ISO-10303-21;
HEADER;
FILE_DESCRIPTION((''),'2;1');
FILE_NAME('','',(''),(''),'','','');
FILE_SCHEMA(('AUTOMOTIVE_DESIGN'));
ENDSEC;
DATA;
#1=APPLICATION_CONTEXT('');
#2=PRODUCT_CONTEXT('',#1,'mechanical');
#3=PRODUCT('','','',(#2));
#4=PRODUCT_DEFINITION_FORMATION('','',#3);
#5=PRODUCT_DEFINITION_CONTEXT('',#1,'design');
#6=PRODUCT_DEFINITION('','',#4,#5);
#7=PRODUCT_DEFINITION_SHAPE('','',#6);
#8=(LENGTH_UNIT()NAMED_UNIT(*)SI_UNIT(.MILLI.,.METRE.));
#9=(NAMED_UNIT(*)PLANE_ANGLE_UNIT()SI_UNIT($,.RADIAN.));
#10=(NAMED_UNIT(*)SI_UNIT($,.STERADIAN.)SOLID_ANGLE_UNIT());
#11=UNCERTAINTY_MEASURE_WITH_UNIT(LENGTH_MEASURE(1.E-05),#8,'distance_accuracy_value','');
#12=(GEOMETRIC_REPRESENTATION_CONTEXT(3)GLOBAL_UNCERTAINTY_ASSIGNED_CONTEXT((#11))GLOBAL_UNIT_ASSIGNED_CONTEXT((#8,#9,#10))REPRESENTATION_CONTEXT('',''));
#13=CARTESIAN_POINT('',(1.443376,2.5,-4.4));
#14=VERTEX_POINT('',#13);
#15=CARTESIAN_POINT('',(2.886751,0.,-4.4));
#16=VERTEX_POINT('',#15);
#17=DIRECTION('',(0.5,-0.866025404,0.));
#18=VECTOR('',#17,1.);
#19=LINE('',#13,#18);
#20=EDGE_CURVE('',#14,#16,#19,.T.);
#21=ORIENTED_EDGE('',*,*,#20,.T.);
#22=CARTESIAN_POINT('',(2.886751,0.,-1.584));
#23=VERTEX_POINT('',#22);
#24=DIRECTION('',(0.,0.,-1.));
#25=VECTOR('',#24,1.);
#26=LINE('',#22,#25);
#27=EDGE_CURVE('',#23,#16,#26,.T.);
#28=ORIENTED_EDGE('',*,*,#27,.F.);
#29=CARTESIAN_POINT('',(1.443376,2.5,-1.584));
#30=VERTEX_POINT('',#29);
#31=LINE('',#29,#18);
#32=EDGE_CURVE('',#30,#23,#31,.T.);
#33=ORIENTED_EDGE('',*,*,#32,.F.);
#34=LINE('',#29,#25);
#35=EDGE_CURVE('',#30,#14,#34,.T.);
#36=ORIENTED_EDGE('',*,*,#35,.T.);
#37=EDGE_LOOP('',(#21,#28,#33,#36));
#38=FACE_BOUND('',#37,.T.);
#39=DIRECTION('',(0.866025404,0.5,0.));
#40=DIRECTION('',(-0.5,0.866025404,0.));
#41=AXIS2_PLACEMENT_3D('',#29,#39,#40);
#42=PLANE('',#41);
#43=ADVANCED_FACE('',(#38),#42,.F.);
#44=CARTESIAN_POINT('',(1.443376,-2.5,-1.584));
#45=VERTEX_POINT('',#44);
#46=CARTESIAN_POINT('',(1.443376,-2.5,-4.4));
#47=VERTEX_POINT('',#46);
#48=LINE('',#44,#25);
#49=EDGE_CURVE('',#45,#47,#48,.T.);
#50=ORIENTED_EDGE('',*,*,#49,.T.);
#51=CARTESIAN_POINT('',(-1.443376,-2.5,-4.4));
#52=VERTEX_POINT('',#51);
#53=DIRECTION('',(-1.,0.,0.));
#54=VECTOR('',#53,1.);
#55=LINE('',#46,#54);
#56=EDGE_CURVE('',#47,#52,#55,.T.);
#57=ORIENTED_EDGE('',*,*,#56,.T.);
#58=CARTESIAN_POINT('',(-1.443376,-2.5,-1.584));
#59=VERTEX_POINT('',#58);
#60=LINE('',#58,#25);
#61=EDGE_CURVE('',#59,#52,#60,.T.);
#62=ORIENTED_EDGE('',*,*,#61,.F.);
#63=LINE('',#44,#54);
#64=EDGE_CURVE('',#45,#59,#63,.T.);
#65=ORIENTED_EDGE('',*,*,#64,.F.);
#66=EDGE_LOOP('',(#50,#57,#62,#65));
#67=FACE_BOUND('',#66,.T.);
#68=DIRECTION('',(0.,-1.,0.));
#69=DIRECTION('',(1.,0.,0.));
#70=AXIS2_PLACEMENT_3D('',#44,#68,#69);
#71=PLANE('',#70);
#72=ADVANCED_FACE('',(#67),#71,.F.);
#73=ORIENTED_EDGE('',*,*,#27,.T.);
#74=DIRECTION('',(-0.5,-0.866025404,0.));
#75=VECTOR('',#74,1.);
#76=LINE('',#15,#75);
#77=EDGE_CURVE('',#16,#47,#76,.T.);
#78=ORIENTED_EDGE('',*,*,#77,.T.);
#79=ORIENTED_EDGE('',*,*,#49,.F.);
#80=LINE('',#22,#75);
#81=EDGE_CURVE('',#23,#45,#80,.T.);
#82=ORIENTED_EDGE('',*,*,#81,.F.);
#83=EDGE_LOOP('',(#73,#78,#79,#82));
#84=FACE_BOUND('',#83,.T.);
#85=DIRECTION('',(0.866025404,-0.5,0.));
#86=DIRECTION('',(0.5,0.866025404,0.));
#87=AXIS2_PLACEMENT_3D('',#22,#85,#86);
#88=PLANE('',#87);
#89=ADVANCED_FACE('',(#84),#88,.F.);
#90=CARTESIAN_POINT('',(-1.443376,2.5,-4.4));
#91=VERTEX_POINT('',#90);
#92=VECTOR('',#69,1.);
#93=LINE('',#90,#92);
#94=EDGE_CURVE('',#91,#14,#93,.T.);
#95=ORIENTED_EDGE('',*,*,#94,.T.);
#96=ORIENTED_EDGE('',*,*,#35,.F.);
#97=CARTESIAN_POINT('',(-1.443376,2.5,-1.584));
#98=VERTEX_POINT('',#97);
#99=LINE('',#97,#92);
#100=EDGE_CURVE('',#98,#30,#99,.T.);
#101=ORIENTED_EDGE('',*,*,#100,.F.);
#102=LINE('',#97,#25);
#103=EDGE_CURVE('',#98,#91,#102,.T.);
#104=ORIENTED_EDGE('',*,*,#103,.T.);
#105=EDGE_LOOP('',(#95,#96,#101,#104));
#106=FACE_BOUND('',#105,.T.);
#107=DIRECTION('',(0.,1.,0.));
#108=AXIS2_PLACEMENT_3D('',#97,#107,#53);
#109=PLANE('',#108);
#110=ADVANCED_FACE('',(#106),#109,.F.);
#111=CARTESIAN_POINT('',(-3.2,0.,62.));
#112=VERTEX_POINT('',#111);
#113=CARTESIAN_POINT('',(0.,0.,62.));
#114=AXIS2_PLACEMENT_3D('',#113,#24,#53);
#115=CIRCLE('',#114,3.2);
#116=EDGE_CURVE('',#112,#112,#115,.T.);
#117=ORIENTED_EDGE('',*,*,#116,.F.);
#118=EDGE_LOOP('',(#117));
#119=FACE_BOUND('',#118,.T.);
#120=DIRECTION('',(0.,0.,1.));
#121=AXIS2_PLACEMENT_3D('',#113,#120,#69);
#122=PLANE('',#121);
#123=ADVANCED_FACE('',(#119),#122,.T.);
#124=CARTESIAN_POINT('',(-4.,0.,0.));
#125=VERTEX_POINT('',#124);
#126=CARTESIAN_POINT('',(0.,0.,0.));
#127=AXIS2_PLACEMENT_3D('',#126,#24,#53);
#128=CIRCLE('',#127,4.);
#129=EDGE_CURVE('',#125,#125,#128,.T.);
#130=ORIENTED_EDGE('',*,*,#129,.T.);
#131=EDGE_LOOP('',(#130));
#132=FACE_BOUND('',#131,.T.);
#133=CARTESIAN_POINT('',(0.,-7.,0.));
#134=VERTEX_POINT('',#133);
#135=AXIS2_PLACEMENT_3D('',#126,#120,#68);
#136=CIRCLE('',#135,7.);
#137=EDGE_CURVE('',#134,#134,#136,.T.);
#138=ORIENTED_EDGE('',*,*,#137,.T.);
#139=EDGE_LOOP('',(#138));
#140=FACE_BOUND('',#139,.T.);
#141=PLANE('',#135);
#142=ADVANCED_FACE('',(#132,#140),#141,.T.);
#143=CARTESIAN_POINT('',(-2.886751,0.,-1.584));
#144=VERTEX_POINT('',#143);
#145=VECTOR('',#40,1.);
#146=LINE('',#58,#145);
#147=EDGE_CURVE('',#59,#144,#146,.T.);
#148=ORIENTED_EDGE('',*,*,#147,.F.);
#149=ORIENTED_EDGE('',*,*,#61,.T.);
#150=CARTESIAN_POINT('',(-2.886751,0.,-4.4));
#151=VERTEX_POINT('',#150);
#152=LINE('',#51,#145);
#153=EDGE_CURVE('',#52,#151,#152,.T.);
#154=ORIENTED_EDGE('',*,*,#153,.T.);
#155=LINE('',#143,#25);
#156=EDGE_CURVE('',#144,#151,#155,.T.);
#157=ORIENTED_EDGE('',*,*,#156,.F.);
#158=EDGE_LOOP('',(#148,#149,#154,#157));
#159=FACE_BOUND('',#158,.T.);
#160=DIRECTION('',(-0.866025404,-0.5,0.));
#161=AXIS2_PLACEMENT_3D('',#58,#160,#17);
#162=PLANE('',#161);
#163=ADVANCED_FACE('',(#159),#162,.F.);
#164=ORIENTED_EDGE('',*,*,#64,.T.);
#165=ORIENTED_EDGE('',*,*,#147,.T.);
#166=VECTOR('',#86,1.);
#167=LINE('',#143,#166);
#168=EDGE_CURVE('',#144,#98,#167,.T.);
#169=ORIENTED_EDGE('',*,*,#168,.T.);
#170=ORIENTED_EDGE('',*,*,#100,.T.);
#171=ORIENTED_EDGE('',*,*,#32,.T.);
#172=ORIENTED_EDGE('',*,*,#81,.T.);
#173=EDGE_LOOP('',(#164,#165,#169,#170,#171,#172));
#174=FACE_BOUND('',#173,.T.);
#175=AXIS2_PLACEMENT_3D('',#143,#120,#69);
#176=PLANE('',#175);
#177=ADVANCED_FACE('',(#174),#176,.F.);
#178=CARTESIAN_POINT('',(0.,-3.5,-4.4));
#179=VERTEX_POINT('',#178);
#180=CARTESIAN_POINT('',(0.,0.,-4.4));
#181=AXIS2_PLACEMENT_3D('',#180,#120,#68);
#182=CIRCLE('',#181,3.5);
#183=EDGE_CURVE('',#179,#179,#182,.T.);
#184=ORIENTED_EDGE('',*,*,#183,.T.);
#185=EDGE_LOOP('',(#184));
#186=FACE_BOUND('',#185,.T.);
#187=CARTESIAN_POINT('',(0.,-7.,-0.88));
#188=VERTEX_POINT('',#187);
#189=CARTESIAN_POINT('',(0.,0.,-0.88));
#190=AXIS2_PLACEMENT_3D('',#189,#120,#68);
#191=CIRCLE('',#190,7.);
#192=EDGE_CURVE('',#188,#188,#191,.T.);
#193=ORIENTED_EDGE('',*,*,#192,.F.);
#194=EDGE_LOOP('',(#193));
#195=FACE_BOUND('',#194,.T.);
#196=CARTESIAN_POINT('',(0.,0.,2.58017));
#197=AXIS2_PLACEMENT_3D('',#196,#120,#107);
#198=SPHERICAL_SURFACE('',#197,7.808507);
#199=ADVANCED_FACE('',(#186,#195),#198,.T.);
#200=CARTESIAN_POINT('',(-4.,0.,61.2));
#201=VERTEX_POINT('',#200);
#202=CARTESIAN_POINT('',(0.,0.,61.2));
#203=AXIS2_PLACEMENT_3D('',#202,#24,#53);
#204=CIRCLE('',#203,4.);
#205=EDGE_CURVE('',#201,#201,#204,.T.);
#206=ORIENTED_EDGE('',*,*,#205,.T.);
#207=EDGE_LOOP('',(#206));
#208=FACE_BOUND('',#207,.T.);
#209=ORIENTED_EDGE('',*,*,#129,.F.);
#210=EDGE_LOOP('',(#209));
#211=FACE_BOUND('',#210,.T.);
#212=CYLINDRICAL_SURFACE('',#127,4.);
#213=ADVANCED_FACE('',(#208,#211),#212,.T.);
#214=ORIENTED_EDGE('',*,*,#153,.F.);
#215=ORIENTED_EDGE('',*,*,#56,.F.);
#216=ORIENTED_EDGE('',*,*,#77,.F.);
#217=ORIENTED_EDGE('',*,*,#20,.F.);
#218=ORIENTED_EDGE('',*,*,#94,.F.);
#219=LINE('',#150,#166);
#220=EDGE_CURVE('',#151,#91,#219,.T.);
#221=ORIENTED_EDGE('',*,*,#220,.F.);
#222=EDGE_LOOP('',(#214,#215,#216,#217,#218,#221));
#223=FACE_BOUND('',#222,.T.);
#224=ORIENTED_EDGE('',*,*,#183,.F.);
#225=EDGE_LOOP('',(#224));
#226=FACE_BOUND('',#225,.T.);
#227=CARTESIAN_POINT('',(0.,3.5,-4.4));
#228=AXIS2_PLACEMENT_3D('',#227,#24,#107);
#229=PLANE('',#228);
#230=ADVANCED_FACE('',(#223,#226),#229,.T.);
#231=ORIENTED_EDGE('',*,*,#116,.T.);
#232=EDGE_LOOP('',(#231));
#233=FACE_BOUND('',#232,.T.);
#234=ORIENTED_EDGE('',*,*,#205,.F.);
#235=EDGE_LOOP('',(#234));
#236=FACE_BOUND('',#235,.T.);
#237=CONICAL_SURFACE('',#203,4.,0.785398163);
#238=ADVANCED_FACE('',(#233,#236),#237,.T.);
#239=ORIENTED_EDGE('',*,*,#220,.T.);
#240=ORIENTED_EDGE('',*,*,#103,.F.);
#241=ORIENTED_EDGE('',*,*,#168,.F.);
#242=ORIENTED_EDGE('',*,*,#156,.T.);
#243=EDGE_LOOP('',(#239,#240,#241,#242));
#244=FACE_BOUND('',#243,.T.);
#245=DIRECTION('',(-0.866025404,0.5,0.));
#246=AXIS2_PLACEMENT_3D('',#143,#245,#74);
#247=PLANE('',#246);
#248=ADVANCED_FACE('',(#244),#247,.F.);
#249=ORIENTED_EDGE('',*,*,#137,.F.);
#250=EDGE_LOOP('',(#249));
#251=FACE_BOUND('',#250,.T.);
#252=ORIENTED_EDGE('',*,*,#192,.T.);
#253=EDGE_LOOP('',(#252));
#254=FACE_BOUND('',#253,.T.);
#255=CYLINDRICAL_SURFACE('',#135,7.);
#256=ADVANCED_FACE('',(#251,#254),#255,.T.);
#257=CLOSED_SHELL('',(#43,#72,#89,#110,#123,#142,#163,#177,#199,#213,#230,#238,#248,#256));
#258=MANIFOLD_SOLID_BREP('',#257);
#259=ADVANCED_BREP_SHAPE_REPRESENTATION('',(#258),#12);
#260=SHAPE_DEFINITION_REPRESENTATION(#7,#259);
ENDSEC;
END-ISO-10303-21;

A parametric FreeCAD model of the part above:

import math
import FreeCAD as App
import Part
import Sketcher

V = App.Vector
Q = App.Units.Quantity

doc = App.newDocument("Part")
body = doc.addObject("PartDesign::Body", "Body")

sketch1 = body.newObject("Sketcher::SketchObject", "Sketch")
sketch1.AttachmentSupport = (doc.getObject("YZ_Plane"), [""])
sketch1.MapMode = "FlatFace"
sketch1.addGeometry(Part.LineSegment(V(4, 61.2, 0), V(3.2, 62, 0)), False)
sketch1.addGeometry(Part.LineSegment(V(3.2, 62, 0), V(0, 62, 0)), False)
sketch1.addGeometry(Part.LineSegment(V(0, 62, 0), V(0, 0, 0)), False)
sketch1.addGeometry(Part.LineSegment(V(0, 0, 0), V(4, 0, 0)), False)
sketch1.addGeometry(Part.LineSegment(V(4, 0, 0), V(4, 61.2, 0)), False)
sketch1.addConstraint(Sketcher.Constraint("Coincident", 0, 2, 1, 1))
sketch1.addConstraint(Sketcher.Constraint("Coincident", 1, 2, 2, 1))
sketch1.addConstraint(Sketcher.Constraint("Coincident", 2, 2, 3, 1))
sketch1.addConstraint(Sketcher.Constraint("Coincident", 3, 2, 4, 1))
sketch1.addConstraint(Sketcher.Constraint("Coincident", 4, 2, 0, 1))
sketch1.addConstraint(Sketcher.Constraint("Horizontal", 1))
sketch1.addConstraint(Sketcher.Constraint("Vertical", 2))
sketch1.addConstraint(Sketcher.Constraint("Horizontal", 3))
sketch1.addConstraint(Sketcher.Constraint("Vertical", 4))
sketch1.addConstraint(Sketcher.Constraint("Coincident", 2, 2, -1, 1))
sketch1.addConstraint(Sketcher.Constraint("DistanceX", 3, 1, 3, 2, 4.0))
sketch1.addConstraint(Sketcher.Constraint("DistanceY", 2, 2, 2, 1, 62.0))
sketch1.addConstraint(Sketcher.Constraint("Angle", 0, Q("135 deg")))
sketch1.addConstraint(Sketcher.Constraint("DistanceX", 1, 2, 1, 1, 3.2))
revolution = body.newObject("PartDesign::Revolution", "Revolution")
revolution.Profile = sketch1
revolution.ReferenceAxis = (sketch1, ["V_Axis"])
revolution.Angle = 360

sketch2 = body.newObject("Sketcher::SketchObject", "Sketch001")
sketch2.AttachmentSupport = (doc.getObject("YZ_Plane"), [""])
sketch2.MapMode = "FlatFace"
sketch2.addGeometry(Part.LineSegment(V(0, 0, 0), V(7, 0, 0)), False)
sketch2.addGeometry(Part.LineSegment(V(7, 0, 0), V(7, -0.88, 0)), False)
sketch2.addGeometry(Part.ArcOfCircle(Part.Circle(V(0, 2.58017, 0), V(0, 0, 1), 7.808507), math.radians(-63.369879), math.radians(-26.303651)), False)
sketch2.addGeometry(Part.LineSegment(V(3.5, -4.4, 0), V(0, -4.4, 0)), False)
sketch2.addGeometry(Part.LineSegment(V(0, -4.4, 0), V(0, 0, 0)), False)
sketch2.addConstraint(Sketcher.Constraint("Coincident", 0, 2, 1, 1))
sketch2.addConstraint(Sketcher.Constraint("Coincident", 1, 2, 2, 2))
sketch2.addConstraint(Sketcher.Constraint("Coincident", 2, 1, 3, 1))
sketch2.addConstraint(Sketcher.Constraint("Coincident", 3, 2, 4, 1))
sketch2.addConstraint(Sketcher.Constraint("Coincident", 4, 2, 0, 1))
sketch2.addConstraint(Sketcher.Constraint("Horizontal", 0))
sketch2.addConstraint(Sketcher.Constraint("Vertical", 1))
sketch2.addConstraint(Sketcher.Constraint("Horizontal", 3))
sketch2.addConstraint(Sketcher.Constraint("Vertical", 4))
sketch2.addConstraint(Sketcher.Constraint("Coincident", 4, 2, -1, 1))
sketch2.addConstraint(Sketcher.Constraint("PointOnObject", 2, 3, -2))
sketch2.addConstraint(Sketcher.Constraint("DistanceX", 0, 1, 0, 2, 7.0))
sketch2.addConstraint(Sketcher.Constraint("DistanceX", 3, 2, 3, 1, 3.5))
sketch2.addConstraint(Sketcher.Constraint("DistanceY", 4, 1, 4, 2, 4.4))
sketch2.addConstraint(Sketcher.Constraint("DistanceY", 1, 2, 1, 1, 0.88))
revolution2 = body.newObject("PartDesign::Revolution", "Revolution001")
revolution2.Profile = sketch2
revolution2.ReferenceAxis = (sketch2, ["V_Axis"])
revolution2.Angle = 360

sketch3 = body.newObject("Sketcher::SketchObject", "Sketch002")
sketch3.AttachmentSupport = (doc.getObject("XY_Plane"), [""])
sketch3.MapMode = "FlatFace"
sketch3.AttachmentOffset = App.Placement(V(0, 0, -4.4), App.Rotation())
sketch3.addGeometry(Part.LineSegment(V(-1.443376, 2.5, 0), V(1.443376, 2.5, 0)), False)
sketch3.addGeometry(Part.LineSegment(V(1.443376, 2.5, 0), V(2.886751, 0, 0)), False)
sketch3.addGeometry(Part.LineSegment(V(2.886751, 0, 0), V(1.443376, -2.5, 0)), False)
sketch3.addGeometry(Part.LineSegment(V(1.443376, -2.5, 0), V(-1.443376, -2.5, 0)), False)
sketch3.addGeometry(Part.LineSegment(V(-1.443376, -2.5, 0), V(-2.886751, 0, 0)), False)
sketch3.addGeometry(Part.LineSegment(V(-2.886751, 0, 0), V(-1.443376, 2.5, 0)), False)
sketch3.addConstraint(Sketcher.Constraint("Coincident", 0, 2, 1, 1))
sketch3.addConstraint(Sketcher.Constraint("Coincident", 1, 2, 2, 1))
sketch3.addConstraint(Sketcher.Constraint("Coincident", 2, 2, 3, 1))
sketch3.addConstraint(Sketcher.Constraint("Coincident", 3, 2, 4, 1))
sketch3.addConstraint(Sketcher.Constraint("Coincident", 4, 2, 5, 1))
sketch3.addConstraint(Sketcher.Constraint("Coincident", 5, 2, 0, 1))
sketch3.addConstraint(Sketcher.Constraint("Horizontal", 0))
sketch3.addConstraint(Sketcher.Constraint("Horizontal", 3))
sketch3.addConstraint(Sketcher.Constraint("Symmetric", 0, 2, 3, 2, -1, 1))
sketch3.addConstraint(Sketcher.Constraint("Symmetric", 1, 2, 4, 2, -1, 1))
sketch3.addConstraint(Sketcher.Constraint("PointOnObject", 1, 2, -1))
sketch3.addConstraint(Sketcher.Constraint("Parallel", 2, 5))
sketch3.addConstraint(Sketcher.Constraint("Vertical", 0, 2, 2, 2))
sketch3.addConstraint(Sketcher.Constraint("Angle", 1, Q("-60 deg")))
sketch3.addConstraint(Sketcher.Constraint("DistanceY", 2, 2, 0, 2, 5.0))
sketch3.addConstraint(Sketcher.Constraint("DistanceX", 0, 1, 0, 2, 2.886751))
pocket1 = body.newObject("PartDesign::Pocket", "Pocket")
pocket1.Profile = sketch3
pocket1.Length = 2.816
pocket1.Reversed = True

doc.recompute()
